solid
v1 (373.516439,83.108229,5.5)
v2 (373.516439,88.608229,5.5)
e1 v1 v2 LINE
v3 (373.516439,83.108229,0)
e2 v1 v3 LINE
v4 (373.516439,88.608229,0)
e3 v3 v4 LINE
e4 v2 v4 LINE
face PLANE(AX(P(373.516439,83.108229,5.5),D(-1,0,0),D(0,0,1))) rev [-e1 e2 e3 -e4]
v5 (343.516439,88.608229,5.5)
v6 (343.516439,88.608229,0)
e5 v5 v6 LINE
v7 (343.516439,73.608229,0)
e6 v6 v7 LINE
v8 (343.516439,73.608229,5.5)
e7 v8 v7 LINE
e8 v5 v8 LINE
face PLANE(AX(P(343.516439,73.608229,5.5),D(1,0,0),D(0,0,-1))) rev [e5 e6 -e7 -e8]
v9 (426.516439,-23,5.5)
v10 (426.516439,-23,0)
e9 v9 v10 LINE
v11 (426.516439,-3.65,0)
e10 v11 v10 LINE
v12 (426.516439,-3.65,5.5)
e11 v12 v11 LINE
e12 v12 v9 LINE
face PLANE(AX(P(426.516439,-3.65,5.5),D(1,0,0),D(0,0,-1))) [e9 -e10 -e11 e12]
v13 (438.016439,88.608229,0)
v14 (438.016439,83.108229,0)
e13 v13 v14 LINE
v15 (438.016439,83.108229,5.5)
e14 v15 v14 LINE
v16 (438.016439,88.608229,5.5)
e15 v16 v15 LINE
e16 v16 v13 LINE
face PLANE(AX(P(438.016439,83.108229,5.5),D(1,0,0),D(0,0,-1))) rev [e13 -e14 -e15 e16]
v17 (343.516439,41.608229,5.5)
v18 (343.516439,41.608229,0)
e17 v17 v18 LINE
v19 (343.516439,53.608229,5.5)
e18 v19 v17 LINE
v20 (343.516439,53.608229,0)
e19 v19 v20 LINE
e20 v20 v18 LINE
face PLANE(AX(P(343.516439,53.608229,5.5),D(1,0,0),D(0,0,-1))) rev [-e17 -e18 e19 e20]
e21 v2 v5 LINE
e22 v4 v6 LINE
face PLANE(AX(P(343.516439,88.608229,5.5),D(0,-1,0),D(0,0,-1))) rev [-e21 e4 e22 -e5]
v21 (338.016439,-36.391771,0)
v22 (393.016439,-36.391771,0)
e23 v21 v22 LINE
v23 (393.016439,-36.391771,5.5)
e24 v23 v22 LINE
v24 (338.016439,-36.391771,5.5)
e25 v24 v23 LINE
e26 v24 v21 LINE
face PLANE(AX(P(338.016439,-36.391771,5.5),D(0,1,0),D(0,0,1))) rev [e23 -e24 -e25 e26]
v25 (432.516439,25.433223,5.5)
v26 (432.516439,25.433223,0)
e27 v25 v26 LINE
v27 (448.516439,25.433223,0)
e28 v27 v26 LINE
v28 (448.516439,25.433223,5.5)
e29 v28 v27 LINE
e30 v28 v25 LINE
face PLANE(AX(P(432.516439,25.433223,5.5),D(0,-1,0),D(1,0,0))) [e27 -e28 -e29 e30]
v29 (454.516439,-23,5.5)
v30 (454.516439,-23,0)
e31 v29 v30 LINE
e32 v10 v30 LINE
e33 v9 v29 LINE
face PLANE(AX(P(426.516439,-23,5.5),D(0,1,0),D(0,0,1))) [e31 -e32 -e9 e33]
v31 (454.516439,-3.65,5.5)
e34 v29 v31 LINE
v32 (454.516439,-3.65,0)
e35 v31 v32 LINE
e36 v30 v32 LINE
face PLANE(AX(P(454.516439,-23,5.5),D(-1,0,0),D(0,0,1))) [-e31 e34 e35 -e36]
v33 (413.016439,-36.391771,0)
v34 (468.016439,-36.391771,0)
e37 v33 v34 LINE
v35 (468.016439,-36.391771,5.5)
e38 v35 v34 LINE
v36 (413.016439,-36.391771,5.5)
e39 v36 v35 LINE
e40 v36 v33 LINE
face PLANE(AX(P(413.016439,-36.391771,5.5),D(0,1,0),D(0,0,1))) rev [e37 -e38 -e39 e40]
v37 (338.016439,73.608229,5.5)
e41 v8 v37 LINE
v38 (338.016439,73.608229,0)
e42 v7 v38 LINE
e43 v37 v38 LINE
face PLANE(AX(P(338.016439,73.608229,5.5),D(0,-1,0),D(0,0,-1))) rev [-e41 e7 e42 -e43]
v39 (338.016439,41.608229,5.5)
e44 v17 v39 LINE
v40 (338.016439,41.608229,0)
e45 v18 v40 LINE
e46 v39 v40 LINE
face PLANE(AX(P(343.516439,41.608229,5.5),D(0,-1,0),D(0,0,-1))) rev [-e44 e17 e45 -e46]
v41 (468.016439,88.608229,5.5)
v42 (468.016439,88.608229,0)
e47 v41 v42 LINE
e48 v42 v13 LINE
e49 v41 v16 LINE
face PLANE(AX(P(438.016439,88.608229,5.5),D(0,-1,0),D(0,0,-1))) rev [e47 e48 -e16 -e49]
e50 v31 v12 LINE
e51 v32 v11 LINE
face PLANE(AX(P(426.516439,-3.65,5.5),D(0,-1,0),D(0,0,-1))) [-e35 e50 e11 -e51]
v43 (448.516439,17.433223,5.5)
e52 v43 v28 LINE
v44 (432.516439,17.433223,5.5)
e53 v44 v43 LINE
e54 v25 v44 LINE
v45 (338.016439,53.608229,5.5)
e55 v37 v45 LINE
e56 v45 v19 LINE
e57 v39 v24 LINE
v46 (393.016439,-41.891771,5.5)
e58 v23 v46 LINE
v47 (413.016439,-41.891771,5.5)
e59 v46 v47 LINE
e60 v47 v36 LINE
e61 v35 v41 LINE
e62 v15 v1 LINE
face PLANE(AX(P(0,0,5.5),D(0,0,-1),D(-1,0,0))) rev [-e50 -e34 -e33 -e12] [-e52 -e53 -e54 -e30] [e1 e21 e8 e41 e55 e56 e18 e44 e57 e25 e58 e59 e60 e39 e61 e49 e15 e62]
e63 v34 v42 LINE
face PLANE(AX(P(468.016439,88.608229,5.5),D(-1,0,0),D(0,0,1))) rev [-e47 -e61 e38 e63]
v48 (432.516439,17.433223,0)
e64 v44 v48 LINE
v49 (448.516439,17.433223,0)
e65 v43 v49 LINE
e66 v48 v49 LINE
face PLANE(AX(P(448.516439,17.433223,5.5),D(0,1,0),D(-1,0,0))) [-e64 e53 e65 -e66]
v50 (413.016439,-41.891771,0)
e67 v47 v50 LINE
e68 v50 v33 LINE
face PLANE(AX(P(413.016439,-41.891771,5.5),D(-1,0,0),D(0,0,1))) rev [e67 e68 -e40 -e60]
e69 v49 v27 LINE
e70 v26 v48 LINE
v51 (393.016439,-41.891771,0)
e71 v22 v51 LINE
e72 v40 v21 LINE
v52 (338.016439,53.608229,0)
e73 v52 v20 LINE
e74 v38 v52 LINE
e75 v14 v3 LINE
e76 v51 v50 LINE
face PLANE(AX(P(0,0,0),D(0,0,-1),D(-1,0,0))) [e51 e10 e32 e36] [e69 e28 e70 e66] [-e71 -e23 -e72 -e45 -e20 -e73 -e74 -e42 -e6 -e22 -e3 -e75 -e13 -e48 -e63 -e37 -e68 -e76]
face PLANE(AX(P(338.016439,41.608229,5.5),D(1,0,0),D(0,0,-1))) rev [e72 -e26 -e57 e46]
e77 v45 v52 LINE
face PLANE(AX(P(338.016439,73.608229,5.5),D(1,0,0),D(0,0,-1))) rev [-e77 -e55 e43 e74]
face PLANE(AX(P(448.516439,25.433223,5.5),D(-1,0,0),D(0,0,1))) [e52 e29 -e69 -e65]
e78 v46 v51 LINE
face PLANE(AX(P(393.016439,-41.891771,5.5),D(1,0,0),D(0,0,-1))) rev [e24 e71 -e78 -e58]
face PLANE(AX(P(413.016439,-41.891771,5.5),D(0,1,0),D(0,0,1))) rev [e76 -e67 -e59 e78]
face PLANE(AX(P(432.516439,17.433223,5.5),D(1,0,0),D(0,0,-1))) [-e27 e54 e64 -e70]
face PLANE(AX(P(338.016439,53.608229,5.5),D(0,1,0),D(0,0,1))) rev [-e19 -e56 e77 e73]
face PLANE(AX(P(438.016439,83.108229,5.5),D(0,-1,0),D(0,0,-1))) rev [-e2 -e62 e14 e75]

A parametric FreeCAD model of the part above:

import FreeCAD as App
import Part
import Sketcher
Q = App.Units.Quantity


def add_polygon(sketch, points):
    """Adds a closed chain of lines whose ends are joined by coincident constraints."""
    first, n = sketch.GeometryCount, len(points)
    for a, b in zip(points, points[1:] + points[:1]):
        sketch.addGeometry(Part.LineSegment(App.Vector(*a, 0), App.Vector(*b, 0)), False)
    for i in range(n):
        sketch.addConstraint(Sketcher.Constraint("Coincident", first + i, 2, first + (i + 1) % n, 1))

doc = App.newDocument("Part")
body = doc.addObject("PartDesign::Body", "Body")

sketch1 = body.newObject("Sketcher::SketchObject", "Sketch")
sketch1.AttachmentSupport = (doc.getObject("XY_Plane"), [""])
sketch1.MapMode = "FlatFace"
add_polygon(sketch1, [(468, -36), (468, 89), (438, 89), (438, 83), (374, 83), (374, 89), (344, 89), (344, 74), (338, 74), (338, 54), (344, 54), (344, 42), (338, 42), (338, -36), (393, -36), (393, -42), (413, -42), (413, -36)])
add_polygon(sketch1, [(427, -23), (427, -4), (455, -4), (455, -23)])
add_polygon(sketch1, [(433, 17), (433, 25), (449, 25), (449, 17)])
sketch1.addConstraint([
    Sketcher.Constraint("Vertical", 0),
    Sketcher.Constraint("Horizontal", 1),
    Sketcher.Constraint("Vertical", 2),
    Sketcher.Constraint("Horizontal", 3),
    Sketcher.Constraint("Vertical", 4),
    Sketcher.Constraint("Horizontal", 5),
    Sketcher.Constraint("Vertical", 6),
    Sketcher.Constraint("Horizontal", 7),
    Sketcher.Constraint("Vertical", 8),
    Sketcher.Constraint("Horizontal", 9),
    Sketcher.Constraint("Vertical", 10),
    Sketcher.Constraint("Horizontal", 11),
    Sketcher.Constraint("Vertical", 12),
    Sketcher.Constraint("Horizontal", 13),
    Sketcher.Constraint("Vertical", 14),
    Sketcher.Constraint("Horizontal", 15),
    Sketcher.Constraint("Vertical", 16),
    Sketcher.Constraint("Horizontal", 17),
    Sketcher.Constraint("Vertical", 18),
    Sketcher.Constraint("Horizontal", 19),
    Sketcher.Constraint("Vertical", 20),
    Sketcher.Constraint("Horizontal", 21),
    Sketcher.Constraint("Vertical", 22),
    Sketcher.Constraint("Horizontal", 23),
    Sketcher.Constraint("Vertical", 24),
    Sketcher.Constraint("Horizontal", 25),
    Sketcher.Constraint("Horizontal", 1, 2, 4, 2),
    Sketcher.Constraint("Horizontal", 13, 2, 16, 2),
    Sketcher.Constraint("Vertical", 6, 2, 9, 2),
    Sketcher.Constraint("Vertical", 8, 2, 11, 2),
    Sketcher.Constraint("Equal", 1, 5),
    Sketcher.Constraint("Equal", 13, 17),
    Sketcher.Constraint("Equal", 11, 2),
    Sketcher.Constraint("Equal", 15, 8),
    Sketcher.Constraint("Equal", 4, 14),
    Sketcher.Constraint("DistanceX", 1, 2, 1, 1, Q("30 mm")),
    Sketcher.Constraint("DistanceX", 13, 1, 13, 2, Q("55 mm")),
    Sketcher.Constraint("DistanceX", 15, 1, 15, 2, Q("20 mm")),
    Sketcher.Constraint("DistanceX", 19, 1, 19, 2, Q("28 mm")),
    Sketcher.Constraint("DistanceX", 23, 1, 23, 2, Q("16 mm")),
    Sketcher.Constraint("DistanceY", 0, 1, 0, 2, Q("125 mm")),
    Sketcher.Constraint("DistanceY", 6, 2, 6, 1, Q("15 mm")),
    Sketcher.Constraint("DistanceY", 10, 2, 10, 1, Q("12 mm")),
    Sketcher.Constraint("DistanceY", 22, 1, 22, 2, Q("8 mm")),
    Sketcher.Constraint("DistanceX", 3, 2, 3, 1, Q("64.5 mm")),
    Sketcher.Constraint("DistanceY", 20, 2, -1, 1, Q("23 mm")),
    Sketcher.Constraint("DistanceX", 18, 2, 22, 2, Q("6 mm")),
    Sketcher.Constraint("DistanceY", 18, 1, 18, 2, Q("19.35 mm")),
    Sketcher.Constraint("DistanceX", 16, 2, 18, 2, Q("13.5 mm")),
    Sketcher.Constraint("DistanceX", -1, 1, 0, 2, Q("468.016439 mm")),
    Sketcher.Constraint("DistanceY", -1, 1, 0, 2, Q("88.608229 mm")),
    Sketcher.Constraint("DistanceY", -1, 1, 22, 2, Q("25.433223 mm")),
])
pad1 = body.newObject("PartDesign::Pad", "Pad")
pad1.Profile = sketch1
pad1.Length = 5.5

doc.recompute()
